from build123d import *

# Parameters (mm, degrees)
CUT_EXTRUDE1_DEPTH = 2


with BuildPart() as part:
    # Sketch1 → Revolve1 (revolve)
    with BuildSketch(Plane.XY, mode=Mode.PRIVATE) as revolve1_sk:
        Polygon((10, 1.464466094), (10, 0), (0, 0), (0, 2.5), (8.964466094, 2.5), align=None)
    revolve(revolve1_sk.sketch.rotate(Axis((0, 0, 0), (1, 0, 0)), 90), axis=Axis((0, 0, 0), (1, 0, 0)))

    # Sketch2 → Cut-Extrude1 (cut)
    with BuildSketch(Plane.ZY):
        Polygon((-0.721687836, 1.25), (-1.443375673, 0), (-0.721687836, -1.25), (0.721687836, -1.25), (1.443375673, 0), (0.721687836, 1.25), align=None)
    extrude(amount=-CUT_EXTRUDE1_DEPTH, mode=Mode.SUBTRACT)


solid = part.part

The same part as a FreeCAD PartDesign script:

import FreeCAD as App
import Part
import Sketcher
from FreeCAD import Vector
Q = App.Units.Quantity


def add_polygon(sketch, points):
    """Adds a closed chain of lines whose ends are joined by coincident constraints."""
    first, n = sketch.GeometryCount, len(points)
    for a, b in zip(points, points[1:] + points[:1]):
        sketch.addGeometry(Part.LineSegment(App.Vector(*a, 0), App.Vector(*b, 0)), False)
    for i in range(n):
        sketch.addConstraint(Sketcher.Constraint("Coincident", first + i, 2, first + (i + 1) % n, 1))

doc = App.newDocument("Part")
params = doc.addObject("Spreadsheet::Sheet", "Params")
for row, (alias, value) in enumerate([
    ("sketch1_width", "10 mm"),
    ("sketch1_height", "2.5 mm"),
    ("revolution_angle", "360 deg"),
    ("pocket1_length", "2 mm"),
], start=1):
    params.set(f"A{row}", alias)
    params.set(f"B{row}", "=" + value)
    params.setAlias(f"B{row}", alias)

body = doc.addObject("PartDesign::Body", "Body")

sketch1 = body.newObject("Sketcher::SketchObject", "Sketch")
sketch1.AttachmentSupport = (doc.getObject("XY_Plane"), [""])
sketch1.MapMode = "FlatFace"
add_polygon(sketch1, [(10, 0), (10, 1.5), (9, 2.5), (0, 2.5), (0, 0)])
sketch1.addConstraint(Sketcher.Constraint("Vertical", 0))
sketch1.addConstraint(Sketcher.Constraint("Horizontal", 2))
sketch1.addConstraint(Sketcher.Constraint("Vertical", 3))
sketch1.addConstraint(Sketcher.Constraint("Horizontal", 4))
sketch1.addConstraint(Sketcher.Constraint("Coincident", 3, 2, -1, 1))
sketch1.addConstraint(Sketcher.Constraint("DistanceX", 4, 1, 4, 2, 10.0))
sketch1.addConstraint(Sketcher.Constraint("Angle", 1, Q("135 deg")))
sketch1.addConstraint(Sketcher.Constraint("DistanceY", 3, 2, 3, 1, 2.5))
sketch1.addConstraint(Sketcher.Constraint("DistanceX", 2, 2, 2, 1, 8.964466))
sketch1.setExpression("Constraints[10]", "Params.sketch1_width")
sketch1.setExpression("Constraints[12]", "Params.sketch1_height")
revolution = body.newObject("PartDesign::Revolution", "Revolution")
revolution.Profile = sketch1
revolution.ReferenceAxis = (sketch1, ["H_Axis"])
revolution.setExpression("Angle", "Params.revolution_angle")

sketch2 = body.newObject("Sketcher::SketchObject", "Sketch001")
sketch2.AttachmentSupport = (doc.getObject("YZ_Plane"), [""])
sketch2.MapMode = "FlatFace"
add_polygon(sketch2, [(1.2, -0.7), (0, -1.4), (-1.2, -0.7), (-1.2, 0.7), (0, 1.4), (1.2, 0.7)])
sketch2.addConstraint(Sketcher.Constraint("Vertical", 2))
sketch2.addConstraint(Sketcher.Constraint("Vertical", 5))
sketch2.addConstraint(Sketcher.Constraint("Symmetric", 0, 2, 3, 2, -1, 1))
sketch2.addConstraint(Sketcher.Constraint("Symmetric", 1, 2, 4, 2, -1, 1))
sketch2.addConstraint(Sketcher.Constraint("PointOnObject", 0, 2, -2))
sketch2.addConstraint(Sketcher.Constraint("Parallel", 0, 3))
sketch2.addConstraint(Sketcher.Constraint("Horizontal", 2, 2, 4, 2))
sketch2.addConstraint(Sketcher.Constraint("Angle", 0, Q("-150 deg")))
sketch2.addConstraint(Sketcher.Constraint("DistanceX", 2, 2, 4, 2, 2.5))
sketch2.addConstraint(Sketcher.Constraint("DistanceY", 2, 1, 2, 2, 1.443376))
pocket1 = body.newObject("PartDesign::Pocket", "Pocket")
pocket1.Profile = sketch2
pocket1.setExpression("Length", "Params.pocket1_length")
pocket1.Reversed = True

doc.recompute()
